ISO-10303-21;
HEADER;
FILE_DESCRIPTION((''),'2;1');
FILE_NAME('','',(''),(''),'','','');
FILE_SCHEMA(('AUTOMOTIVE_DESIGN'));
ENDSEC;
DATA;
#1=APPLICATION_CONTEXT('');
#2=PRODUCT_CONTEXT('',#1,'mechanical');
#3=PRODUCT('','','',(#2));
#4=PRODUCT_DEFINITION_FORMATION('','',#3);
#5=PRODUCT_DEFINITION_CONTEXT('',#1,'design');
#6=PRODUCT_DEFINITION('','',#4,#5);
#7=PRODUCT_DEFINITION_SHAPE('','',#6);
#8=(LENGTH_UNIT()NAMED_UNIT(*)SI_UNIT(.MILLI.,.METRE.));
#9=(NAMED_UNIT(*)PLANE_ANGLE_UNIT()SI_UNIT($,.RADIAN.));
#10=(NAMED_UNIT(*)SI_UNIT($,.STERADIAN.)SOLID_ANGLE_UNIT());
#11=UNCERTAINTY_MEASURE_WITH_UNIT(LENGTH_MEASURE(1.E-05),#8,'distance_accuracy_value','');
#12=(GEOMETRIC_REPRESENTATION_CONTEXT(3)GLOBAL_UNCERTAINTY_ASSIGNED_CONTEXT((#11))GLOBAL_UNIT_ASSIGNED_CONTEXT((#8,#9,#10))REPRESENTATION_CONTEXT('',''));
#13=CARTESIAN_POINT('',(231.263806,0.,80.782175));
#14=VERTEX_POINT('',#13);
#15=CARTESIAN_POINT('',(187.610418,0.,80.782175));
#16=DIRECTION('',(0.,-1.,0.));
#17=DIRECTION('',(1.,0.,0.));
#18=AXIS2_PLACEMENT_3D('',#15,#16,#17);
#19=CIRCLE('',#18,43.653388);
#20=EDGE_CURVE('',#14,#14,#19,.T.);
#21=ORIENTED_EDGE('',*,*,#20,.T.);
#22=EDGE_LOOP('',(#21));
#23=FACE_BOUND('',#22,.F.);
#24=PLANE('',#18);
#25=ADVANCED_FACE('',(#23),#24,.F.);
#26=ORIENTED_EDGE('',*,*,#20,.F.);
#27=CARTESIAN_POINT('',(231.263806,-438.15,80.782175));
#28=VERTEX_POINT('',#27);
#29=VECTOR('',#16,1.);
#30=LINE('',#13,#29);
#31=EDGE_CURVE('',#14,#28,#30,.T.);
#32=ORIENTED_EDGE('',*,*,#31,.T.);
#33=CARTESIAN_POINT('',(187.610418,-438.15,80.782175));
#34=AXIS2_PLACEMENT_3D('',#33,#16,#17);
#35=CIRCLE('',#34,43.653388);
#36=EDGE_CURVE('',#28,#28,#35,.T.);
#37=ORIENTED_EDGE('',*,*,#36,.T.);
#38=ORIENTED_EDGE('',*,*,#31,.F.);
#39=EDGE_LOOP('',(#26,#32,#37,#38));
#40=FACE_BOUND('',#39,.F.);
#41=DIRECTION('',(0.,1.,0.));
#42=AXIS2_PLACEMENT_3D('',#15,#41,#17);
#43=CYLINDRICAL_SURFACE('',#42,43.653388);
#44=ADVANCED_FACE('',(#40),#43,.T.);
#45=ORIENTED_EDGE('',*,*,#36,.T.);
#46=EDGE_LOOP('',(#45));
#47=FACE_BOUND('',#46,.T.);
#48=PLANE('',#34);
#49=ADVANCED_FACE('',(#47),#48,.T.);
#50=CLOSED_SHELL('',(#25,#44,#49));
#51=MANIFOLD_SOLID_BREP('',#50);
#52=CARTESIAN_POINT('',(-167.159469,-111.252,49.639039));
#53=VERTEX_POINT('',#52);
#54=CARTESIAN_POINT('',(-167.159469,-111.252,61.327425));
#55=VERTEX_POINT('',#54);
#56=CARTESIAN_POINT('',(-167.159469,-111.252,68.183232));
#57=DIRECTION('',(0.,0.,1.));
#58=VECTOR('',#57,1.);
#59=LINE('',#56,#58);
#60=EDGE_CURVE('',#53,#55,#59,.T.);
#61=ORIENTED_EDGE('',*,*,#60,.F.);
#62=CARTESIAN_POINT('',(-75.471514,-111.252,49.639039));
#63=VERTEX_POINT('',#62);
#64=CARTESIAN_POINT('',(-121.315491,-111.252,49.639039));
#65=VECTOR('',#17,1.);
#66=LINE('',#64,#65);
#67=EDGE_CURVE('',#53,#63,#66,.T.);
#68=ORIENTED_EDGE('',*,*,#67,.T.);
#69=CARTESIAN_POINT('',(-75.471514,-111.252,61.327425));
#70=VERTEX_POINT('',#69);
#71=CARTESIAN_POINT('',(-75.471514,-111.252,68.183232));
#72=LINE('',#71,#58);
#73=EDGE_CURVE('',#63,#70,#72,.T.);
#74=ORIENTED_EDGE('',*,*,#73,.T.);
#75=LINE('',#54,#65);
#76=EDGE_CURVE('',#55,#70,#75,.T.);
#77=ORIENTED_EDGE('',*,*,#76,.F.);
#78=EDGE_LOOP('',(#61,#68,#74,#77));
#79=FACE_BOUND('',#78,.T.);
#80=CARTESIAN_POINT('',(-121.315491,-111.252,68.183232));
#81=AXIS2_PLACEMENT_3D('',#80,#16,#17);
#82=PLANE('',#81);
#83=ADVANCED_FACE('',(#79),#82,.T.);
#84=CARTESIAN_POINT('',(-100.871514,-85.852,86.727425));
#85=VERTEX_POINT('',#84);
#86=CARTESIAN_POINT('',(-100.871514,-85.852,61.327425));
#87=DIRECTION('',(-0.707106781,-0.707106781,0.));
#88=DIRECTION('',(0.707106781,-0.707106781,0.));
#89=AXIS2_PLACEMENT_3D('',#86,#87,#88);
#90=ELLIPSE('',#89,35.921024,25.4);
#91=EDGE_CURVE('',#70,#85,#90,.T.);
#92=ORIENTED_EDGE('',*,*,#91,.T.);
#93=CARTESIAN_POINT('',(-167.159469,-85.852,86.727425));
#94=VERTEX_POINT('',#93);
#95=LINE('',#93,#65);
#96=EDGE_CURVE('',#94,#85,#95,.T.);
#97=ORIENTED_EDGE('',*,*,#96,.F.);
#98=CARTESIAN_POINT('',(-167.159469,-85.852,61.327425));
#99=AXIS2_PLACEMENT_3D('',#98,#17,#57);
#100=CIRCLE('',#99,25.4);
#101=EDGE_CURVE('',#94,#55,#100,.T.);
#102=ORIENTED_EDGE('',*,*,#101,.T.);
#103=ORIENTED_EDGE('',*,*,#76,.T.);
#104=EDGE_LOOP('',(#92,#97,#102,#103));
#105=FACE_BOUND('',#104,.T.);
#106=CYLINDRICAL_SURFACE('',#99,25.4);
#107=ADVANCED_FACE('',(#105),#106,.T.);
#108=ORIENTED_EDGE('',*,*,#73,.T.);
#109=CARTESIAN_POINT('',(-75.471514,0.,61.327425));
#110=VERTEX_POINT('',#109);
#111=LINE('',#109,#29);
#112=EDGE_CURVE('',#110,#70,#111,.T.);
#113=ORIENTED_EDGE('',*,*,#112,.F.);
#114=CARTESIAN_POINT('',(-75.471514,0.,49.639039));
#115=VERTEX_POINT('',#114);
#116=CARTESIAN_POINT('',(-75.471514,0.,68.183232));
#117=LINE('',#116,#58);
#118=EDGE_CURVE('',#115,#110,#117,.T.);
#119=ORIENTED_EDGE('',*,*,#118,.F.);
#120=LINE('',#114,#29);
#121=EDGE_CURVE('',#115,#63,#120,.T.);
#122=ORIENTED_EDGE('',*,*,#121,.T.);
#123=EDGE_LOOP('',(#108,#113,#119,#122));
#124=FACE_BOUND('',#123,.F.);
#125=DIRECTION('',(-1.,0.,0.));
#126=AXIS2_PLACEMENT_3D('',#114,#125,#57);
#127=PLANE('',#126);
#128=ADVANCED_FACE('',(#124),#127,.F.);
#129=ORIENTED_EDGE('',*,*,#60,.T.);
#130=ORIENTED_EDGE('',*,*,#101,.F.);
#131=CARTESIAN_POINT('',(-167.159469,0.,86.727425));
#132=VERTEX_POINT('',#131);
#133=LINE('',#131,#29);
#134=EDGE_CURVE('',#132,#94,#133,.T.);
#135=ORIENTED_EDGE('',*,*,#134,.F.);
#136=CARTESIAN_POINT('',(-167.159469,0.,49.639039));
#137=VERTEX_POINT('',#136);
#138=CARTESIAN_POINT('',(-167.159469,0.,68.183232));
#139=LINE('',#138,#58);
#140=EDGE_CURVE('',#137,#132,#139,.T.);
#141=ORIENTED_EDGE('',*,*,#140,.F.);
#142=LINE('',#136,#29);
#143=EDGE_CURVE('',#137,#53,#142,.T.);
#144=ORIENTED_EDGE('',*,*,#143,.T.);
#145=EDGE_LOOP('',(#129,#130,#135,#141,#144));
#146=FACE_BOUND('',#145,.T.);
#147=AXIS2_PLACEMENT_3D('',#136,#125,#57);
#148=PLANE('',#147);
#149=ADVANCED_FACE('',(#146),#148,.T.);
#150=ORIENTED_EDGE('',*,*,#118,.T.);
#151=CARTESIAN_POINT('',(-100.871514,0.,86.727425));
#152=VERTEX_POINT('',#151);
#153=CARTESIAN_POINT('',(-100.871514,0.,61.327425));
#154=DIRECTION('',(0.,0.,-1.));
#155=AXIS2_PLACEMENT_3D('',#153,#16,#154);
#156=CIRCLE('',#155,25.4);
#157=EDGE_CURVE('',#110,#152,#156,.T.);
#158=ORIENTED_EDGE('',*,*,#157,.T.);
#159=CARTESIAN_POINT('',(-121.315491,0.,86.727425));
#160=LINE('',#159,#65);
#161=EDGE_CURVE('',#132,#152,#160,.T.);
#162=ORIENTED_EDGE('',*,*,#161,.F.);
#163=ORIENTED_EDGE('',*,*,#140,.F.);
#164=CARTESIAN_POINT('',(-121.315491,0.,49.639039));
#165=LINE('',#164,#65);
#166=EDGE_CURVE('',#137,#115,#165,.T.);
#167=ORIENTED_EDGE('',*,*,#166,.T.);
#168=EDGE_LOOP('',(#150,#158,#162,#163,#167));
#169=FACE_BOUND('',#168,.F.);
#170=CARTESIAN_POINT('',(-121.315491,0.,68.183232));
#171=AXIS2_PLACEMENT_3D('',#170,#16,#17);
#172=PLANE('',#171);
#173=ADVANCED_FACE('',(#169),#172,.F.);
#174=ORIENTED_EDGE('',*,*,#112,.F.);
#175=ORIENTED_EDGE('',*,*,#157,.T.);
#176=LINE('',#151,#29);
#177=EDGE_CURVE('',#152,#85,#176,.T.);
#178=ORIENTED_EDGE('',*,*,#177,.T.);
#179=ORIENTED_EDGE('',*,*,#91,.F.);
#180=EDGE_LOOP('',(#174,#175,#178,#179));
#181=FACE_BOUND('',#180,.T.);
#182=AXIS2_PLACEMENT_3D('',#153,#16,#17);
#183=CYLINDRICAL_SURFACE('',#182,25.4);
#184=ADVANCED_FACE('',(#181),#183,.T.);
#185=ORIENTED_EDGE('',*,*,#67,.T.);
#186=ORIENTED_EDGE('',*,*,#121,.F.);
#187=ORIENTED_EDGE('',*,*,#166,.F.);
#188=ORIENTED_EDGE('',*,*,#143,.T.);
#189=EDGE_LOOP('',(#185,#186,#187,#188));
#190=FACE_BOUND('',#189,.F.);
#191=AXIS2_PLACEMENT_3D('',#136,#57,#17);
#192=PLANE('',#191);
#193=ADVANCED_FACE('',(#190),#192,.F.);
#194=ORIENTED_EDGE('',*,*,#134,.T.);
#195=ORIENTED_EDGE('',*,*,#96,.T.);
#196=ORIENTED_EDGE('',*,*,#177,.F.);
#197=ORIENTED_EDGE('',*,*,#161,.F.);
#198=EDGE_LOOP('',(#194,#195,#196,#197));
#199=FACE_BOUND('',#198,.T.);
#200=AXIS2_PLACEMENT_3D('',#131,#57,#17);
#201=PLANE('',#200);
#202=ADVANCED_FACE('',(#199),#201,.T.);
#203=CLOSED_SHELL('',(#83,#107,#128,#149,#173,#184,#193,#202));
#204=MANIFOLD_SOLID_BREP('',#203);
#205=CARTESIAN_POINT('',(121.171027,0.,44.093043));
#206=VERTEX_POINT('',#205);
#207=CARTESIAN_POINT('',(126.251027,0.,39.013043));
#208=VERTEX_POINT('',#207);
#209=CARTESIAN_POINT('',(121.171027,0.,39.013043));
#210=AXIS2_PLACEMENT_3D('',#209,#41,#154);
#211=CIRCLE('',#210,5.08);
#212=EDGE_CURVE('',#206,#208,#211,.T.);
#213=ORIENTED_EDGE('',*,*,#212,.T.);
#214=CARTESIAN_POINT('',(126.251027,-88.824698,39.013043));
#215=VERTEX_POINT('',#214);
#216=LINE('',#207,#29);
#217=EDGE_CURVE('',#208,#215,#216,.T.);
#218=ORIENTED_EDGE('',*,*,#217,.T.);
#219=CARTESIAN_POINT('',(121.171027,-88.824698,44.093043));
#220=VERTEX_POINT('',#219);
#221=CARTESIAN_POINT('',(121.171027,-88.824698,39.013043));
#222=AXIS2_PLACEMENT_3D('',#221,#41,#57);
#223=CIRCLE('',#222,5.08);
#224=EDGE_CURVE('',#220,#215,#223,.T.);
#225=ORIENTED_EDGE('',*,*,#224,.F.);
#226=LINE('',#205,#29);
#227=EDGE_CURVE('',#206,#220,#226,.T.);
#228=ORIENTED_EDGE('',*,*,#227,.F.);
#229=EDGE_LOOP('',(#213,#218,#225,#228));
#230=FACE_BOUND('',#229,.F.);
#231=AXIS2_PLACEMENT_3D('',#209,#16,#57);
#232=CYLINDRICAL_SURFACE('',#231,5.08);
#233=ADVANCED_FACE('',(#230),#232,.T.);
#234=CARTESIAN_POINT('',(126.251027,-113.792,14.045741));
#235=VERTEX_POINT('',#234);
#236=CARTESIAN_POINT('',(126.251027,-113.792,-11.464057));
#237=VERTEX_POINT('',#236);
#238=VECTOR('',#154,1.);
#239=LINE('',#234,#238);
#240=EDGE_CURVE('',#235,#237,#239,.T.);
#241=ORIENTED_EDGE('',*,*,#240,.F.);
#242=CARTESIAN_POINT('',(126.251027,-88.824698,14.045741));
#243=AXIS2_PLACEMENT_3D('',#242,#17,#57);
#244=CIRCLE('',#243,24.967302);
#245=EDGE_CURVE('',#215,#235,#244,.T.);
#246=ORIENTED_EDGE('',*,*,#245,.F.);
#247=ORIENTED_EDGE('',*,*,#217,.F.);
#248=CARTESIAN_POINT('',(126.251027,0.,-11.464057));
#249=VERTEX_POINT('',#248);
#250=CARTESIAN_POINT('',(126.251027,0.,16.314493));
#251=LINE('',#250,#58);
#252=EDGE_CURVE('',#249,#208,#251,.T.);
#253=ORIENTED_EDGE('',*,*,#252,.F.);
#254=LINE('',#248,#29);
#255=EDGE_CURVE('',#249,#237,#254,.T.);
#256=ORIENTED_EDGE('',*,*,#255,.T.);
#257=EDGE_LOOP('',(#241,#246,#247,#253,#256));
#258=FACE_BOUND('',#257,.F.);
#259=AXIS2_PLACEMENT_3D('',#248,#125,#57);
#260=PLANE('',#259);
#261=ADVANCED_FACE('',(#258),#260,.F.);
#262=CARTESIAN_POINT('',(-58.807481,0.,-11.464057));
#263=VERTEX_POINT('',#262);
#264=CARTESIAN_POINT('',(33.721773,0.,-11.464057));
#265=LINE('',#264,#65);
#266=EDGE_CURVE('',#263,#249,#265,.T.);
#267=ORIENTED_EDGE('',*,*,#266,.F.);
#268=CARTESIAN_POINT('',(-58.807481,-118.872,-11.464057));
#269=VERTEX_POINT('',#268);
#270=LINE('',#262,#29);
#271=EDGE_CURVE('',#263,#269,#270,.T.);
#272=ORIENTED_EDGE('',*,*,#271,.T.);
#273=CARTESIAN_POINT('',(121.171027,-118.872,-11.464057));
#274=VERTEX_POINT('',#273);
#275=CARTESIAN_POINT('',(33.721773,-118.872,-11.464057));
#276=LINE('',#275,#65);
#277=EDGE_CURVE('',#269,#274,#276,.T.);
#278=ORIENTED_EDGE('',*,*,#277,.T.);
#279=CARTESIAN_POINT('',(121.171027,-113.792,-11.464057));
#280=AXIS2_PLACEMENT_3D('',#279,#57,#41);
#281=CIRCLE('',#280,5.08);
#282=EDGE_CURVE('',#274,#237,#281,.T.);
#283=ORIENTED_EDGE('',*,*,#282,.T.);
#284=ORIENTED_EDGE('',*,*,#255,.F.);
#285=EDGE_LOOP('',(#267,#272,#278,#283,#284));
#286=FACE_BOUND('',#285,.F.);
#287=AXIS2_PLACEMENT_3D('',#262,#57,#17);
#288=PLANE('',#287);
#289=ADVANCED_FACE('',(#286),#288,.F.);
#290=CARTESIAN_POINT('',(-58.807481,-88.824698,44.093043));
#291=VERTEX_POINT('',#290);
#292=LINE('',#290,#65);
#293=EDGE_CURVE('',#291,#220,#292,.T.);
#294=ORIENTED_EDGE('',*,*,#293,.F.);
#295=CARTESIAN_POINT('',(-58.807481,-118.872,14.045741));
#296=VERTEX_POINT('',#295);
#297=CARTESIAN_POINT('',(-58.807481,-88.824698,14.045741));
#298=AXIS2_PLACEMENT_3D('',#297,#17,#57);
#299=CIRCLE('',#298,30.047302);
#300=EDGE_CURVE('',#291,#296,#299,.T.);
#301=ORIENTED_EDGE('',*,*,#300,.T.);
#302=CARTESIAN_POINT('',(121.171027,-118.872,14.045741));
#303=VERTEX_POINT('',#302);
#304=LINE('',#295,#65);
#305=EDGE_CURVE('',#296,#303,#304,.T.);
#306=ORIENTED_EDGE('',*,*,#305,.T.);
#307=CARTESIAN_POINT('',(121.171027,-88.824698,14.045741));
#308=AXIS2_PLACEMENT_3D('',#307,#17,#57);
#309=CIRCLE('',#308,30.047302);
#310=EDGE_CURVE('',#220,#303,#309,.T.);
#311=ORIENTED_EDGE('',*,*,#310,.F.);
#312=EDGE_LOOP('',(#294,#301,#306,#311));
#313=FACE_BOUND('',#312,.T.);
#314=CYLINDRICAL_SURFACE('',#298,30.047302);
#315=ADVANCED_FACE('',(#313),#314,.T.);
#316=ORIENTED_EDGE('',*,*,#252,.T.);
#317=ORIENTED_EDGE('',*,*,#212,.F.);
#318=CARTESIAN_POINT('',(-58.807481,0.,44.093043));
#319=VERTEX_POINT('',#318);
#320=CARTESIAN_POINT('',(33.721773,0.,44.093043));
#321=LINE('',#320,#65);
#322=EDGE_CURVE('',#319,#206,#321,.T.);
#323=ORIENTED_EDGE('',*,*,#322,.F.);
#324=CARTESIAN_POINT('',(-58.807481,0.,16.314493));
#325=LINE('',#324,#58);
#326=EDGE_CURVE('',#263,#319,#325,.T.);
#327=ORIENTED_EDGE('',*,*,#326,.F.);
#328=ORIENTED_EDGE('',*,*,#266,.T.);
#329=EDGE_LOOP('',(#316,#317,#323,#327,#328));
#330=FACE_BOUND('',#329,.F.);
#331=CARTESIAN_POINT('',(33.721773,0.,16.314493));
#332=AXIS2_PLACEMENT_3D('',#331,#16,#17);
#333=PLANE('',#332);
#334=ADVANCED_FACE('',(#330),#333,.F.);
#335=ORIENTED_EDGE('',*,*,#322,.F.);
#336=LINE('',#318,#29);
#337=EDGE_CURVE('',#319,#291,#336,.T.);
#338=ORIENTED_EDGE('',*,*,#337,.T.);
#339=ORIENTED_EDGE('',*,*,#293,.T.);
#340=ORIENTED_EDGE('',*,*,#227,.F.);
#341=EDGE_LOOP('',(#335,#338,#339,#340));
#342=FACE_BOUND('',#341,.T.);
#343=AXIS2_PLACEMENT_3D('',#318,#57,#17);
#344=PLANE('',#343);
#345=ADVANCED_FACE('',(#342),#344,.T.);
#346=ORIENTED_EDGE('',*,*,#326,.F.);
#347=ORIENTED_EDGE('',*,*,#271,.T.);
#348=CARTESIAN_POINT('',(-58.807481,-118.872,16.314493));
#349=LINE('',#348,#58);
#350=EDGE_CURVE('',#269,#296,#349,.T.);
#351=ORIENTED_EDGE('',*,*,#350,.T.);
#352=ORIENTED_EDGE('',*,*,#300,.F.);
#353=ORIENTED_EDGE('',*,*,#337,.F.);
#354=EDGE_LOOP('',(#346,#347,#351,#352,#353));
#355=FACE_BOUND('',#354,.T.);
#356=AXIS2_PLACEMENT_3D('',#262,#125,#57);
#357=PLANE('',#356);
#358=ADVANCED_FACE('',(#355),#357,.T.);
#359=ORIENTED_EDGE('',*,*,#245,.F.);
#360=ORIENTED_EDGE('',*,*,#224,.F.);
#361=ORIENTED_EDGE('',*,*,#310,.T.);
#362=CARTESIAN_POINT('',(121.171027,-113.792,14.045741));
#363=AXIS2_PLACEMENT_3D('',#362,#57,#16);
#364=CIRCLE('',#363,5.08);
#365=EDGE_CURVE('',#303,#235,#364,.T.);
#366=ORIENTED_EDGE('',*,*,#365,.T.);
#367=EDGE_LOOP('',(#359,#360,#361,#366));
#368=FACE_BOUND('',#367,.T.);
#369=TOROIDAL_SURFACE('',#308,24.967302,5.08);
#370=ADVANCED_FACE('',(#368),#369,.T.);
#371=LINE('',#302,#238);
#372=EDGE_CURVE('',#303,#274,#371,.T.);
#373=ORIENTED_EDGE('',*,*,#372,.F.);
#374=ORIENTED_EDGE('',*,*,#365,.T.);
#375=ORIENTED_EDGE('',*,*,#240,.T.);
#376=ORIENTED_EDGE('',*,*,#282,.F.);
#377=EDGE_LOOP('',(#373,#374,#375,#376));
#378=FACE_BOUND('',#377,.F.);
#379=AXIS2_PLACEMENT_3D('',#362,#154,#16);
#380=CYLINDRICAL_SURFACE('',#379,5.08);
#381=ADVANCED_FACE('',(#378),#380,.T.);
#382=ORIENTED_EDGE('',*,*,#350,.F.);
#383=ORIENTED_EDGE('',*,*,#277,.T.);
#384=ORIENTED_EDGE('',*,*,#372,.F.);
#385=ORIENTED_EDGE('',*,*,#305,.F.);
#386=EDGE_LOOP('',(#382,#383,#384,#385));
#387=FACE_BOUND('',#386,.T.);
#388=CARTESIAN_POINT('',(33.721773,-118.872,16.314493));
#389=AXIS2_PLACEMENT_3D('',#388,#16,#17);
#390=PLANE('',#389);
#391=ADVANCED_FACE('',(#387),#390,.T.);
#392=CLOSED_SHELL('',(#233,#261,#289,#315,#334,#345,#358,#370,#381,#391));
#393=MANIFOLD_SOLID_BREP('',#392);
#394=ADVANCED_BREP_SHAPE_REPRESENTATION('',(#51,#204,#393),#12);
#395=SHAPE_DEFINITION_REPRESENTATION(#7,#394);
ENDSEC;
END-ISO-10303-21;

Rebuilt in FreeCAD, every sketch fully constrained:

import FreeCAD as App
import Part
import Sketcher
Q = App.Units.Quantity


def edges_at(feature, points):
    """Names of the edges that pass closest to the given points."""
    edges = feature.Shape.Edges
    near = lambda p: min(range(len(edges)), key=lambda i: edges[i].distToShape(Part.Vertex(*p))[0])
    return sorted({f"Edge{near(p) + 1}" for p in points})

doc = App.newDocument("Part")
body = doc.addObject("PartDesign::Body", "Body")

# Sketch on XZ plane
sketch1 = body.newObject("Sketcher::SketchObject", "Sketch")
sketch1.AttachmentSupport = (doc.getObject("XZ_Plane"), [""])
sketch1.MapMode = "FlatFace"
sketch1.addGeometry([
    Part.LineSegment(App.Vector(-59, 44, 0), App.Vector(-59, -11, 0)),
    Part.LineSegment(App.Vector(-59, -11, 0), App.Vector(126, -11, 0)),
    Part.LineSegment(App.Vector(126, -11, 0), App.Vector(126, 44, 0)),
    Part.LineSegment(App.Vector(126, 44, 0), App.Vector(-59, 44, 0)),
], False)
sketch1.addConstraint([
    Sketcher.Constraint("Coincident", 0, 2, 1, 1),
    Sketcher.Constraint("Coincident", 1, 2, 2, 1),
    Sketcher.Constraint("Coincident", 2, 2, 3, 1),
    Sketcher.Constraint("Coincident", 3, 2, 0, 1),
    Sketcher.Constraint("Vertical", 0),
    Sketcher.Constraint("Horizontal", 1),
    Sketcher.Constraint("Vertical", 2),
    Sketcher.Constraint("Horizontal", 3),
    Sketcher.Constraint("DistanceY", 0, 2, 0, 1, 55.5571),
    Sketcher.Constraint("DistanceX", 1, 1, 1, 2, 185.058508),
    Sketcher.Constraint("DistanceX", 0, 2, -1, 1, 58.807481),
    Sketcher.Constraint("DistanceY", 0, 2, -1, 1, 11.464057),
])
pad1 = body.newObject("PartDesign::Pad", "Pad")
pad1.Profile = sketch1
pad1.Length = Q("4.68 in")
doc.recompute()

fillet = body.newObject("PartDesign::Fillet", "Fillet")
fillet.Base = (pad1, edges_at(pad1, [(33.722, -118.872, 44.093)]))
fillet.Radius = 30.047302
doc.recompute()

fillet2 = body.newObject("PartDesign::Fillet", "Fillet001")
fillet2.Base = (fillet, edges_at(fillet, [(126.251, -44.412, 44.093)]))
fillet2.Radius = Q("0.2 in")
body2 = doc.addObject("PartDesign::Body", "Body001")

# Sketch on XZ plane
sketch2 = body2.newObject("Sketcher::SketchObject", "Sketch001")
sketch2.AttachmentSupport = (doc.getObject("XZ_Plane001"), [""])
sketch2.MapMode = "FlatFace"
sketch2.addGeometry([
    Part.LineSegment(App.Vector(-167, 87, 0), App.Vector(-167, 50, 0)),
    Part.LineSegment(App.Vector(-167, 50, 0), App.Vector(-75, 50, 0)),
    Part.LineSegment(App.Vector(-75, 50, 0), App.Vector(-75, 87, 0)),
    Part.LineSegment(App.Vector(-75, 87, 0), App.Vector(-167, 87, 0)),
], False)
sketch2.addConstraint([
    Sketcher.Constraint("Coincident", 0, 2, 1, 1),
    Sketcher.Constraint("Coincident", 1, 2, 2, 1),
    Sketcher.Constraint("Coincident", 2, 2, 3, 1),
    Sketcher.Constraint("Coincident", 3, 2, 0, 1),
    Sketcher.Constraint("Vertical", 0),
    Sketcher.Constraint("Horizontal", 1),
    Sketcher.Constraint("Vertical", 2),
    Sketcher.Constraint("Horizontal", 3),
    Sketcher.Constraint("DistanceX", 1, 1, 1, 2, 91.687955),
    Sketcher.Constraint("DistanceY", 0, 2, 0, 1, 37.088386),
    Sketcher.Constraint("DistanceX", 0, 2, -1, 1, 167.159469),
    Sketcher.Constraint("DistanceY", -1, 1, 0, 2, 49.639039),
])
pad2 = body2.newObject("PartDesign::Pad", "Pad001")
pad2.Profile = sketch2
pad2.Length = Q("4.38 in")
doc.recompute()

fillet3 = body2.newObject("PartDesign::Fillet", "Fillet002")
fillet3.Base = (pad2, edges_at(pad2, [(-75.472, -55.626, 86.727), (-121.315, -111.252, 86.727)]))
fillet3.Radius = Q("1 in")
body3 = doc.addObject("PartDesign::Body", "Body002")

# Sketch on XZ plane
sketch3 = body3.newObject("Sketcher::SketchObject", "Sketch002")
sketch3.AttachmentSupport = (doc.getObject("XZ_Plane002"), [""])
sketch3.MapMode = "FlatFace"
sketch3.addGeometry(Part.Circle(App.Vector(188, 81, 0), App.Vector(0, 0, 1), 44), False)
sketch3.addConstraint([
    Sketcher.Constraint("Diameter", 0, 87.306776),
    Sketcher.Constraint("DistanceX", -1, 1, 0, 3, 187.610418),
    Sketcher.Constraint("DistanceY", -1, 1, 0, 3, 80.782175),
])
pad3 = body3.newObject("PartDesign::Pad", "Pad002")
pad3.Profile = sketch3
pad3.Length = Q("17.25 in")

doc.recompute()
